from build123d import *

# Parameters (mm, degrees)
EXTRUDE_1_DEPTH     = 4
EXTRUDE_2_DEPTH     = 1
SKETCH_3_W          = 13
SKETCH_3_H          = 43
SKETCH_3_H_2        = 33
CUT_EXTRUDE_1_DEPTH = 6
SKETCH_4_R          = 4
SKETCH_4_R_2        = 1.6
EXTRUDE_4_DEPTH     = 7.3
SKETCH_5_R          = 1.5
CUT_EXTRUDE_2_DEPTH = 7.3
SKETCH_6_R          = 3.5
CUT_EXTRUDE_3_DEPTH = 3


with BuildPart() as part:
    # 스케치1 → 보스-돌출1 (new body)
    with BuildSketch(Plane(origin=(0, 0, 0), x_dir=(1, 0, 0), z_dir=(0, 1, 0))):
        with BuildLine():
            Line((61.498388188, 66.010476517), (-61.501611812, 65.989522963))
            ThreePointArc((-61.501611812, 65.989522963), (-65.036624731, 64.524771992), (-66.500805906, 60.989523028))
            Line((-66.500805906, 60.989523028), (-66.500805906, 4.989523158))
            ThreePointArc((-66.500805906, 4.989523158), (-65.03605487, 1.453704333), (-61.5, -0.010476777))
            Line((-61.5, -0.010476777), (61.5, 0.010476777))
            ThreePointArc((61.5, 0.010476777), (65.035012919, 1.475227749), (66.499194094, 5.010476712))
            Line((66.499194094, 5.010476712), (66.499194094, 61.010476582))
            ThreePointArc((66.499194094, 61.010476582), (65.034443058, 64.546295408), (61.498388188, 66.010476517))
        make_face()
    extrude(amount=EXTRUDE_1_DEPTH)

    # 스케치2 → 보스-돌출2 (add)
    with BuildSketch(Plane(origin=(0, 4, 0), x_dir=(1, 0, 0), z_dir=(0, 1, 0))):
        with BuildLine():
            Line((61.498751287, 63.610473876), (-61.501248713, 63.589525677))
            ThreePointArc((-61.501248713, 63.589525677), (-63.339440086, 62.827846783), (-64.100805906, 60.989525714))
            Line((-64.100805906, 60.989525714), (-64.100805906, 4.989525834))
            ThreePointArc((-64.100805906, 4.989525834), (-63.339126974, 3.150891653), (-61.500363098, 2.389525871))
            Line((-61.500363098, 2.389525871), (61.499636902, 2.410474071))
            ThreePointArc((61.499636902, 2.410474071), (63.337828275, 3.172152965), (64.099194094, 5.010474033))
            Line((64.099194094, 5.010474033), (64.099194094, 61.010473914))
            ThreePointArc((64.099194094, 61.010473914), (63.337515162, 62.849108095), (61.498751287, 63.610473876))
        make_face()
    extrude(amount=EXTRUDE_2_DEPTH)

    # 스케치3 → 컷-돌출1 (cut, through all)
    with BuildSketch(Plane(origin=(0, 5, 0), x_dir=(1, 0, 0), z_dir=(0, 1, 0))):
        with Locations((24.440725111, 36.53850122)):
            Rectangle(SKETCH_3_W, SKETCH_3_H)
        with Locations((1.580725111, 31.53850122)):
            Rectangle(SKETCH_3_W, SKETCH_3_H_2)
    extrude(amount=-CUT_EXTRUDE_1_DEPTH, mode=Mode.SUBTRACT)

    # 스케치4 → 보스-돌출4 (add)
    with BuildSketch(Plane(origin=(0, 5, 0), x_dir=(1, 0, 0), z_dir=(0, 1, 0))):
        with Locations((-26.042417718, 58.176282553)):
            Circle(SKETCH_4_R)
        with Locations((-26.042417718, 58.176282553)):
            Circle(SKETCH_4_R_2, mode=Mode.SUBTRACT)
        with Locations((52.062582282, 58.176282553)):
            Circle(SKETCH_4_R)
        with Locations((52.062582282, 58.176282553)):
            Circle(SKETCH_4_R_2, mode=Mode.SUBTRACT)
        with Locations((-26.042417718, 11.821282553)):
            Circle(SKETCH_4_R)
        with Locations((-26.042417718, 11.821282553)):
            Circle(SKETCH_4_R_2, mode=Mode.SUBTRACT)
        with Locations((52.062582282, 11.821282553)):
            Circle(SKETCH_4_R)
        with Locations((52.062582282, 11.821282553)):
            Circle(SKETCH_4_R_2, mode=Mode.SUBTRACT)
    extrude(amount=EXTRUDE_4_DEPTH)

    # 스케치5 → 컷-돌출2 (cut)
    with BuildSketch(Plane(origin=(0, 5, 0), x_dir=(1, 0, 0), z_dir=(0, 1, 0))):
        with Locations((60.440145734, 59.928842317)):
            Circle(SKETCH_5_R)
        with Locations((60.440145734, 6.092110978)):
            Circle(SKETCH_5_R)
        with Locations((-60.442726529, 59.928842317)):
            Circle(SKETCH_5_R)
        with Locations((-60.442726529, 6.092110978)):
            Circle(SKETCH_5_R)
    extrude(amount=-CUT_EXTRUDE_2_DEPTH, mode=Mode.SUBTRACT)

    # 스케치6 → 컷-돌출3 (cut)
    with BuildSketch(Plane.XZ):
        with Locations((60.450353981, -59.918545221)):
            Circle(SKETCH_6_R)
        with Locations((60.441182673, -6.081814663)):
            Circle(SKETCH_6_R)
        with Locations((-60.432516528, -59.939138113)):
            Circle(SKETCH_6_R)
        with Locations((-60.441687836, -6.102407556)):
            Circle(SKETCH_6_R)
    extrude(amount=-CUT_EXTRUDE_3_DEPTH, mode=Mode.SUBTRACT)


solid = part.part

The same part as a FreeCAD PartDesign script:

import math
import FreeCAD as App
import Part
import Sketcher

V = App.Vector

doc = App.newDocument("Part")
params = doc.addObject("Spreadsheet::Sheet", "Params")
for row, (alias, value) in enumerate([
    ("sketch1_radius", "5 mm"),
    ("sketch1_height", "56 mm"),
    ("sketch1_length", "123.000002 mm"),
    ("pad1_length", "4 mm"),
    ("sketch2_radius", "2.6 mm"),
    ("sketch2_height", "56 mm"),
    ("sketch2_length", "123.000002 mm"),
    ("pad2_length", "1 mm"),
    ("sketch3_width", "13 mm"),
    ("sketch3_height", "43 mm"),
    ("sketch3_height2", "33 mm"),
    ("sketch4_diameter", "8 mm"),
    ("sketch4_diameter2", "3.2 mm"),
    ("pad3_length", "7.3 mm"),
    ("sketch5_diameter", "3 mm"),
    ("pocket2_length", "7.3 mm"),
    ("sketch6_diameter", "7 mm"),
    ("pocket3_length", "3 mm"),
], start=1):
    params.set(f"A{row}", alias)
    params.set(f"B{row}", "=" + value)
    params.setAlias(f"B{row}", alias)

body = doc.addObject("PartDesign::Body", "Body")

sketch1 = body.newObject("Sketcher::SketchObject", "Sketch")
sketch1.AttachmentSupport = (doc.getObject("XZ_Plane"), [""])
sketch1.MapMode = "FlatFace"
sketch1.addGeometry(Part.LineSegment(V(61.498388, -66.010477, 0), V(-61.501612, -65.989523, 0)), False)
sketch1.addGeometry(Part.ArcOfCircle(Part.Circle(V(-61.500806, -60.989523, 0), V(0, 0, 1), 5), math.radians(180), math.radians(269.990765)), False)
sketch1.addGeometry(Part.LineSegment(V(-66.500806, -60.989523, 0), V(-66.500806, -4.989523, 0)), False)
sketch1.addGeometry(Part.ArcOfCircle(Part.Circle(V(-61.500806, -4.989523, 0), V(0, 0, 1), 5), math.radians(89.990765), math.radians(180)), False)
sketch1.addGeometry(Part.LineSegment(V(-61.5, 0.010477, 0), V(61.5, -0.010477, 0)), False)
sketch1.addGeometry(Part.ArcOfCircle(Part.Circle(V(61.499194, -5.010477, 0), V(0, 0, 1), 5), math.radians(0), math.radians(89.990765)), False)
sketch1.addGeometry(Part.LineSegment(V(66.499194, -5.010477, 0), V(66.499194, -61.010477, 0)), False)
sketch1.addGeometry(Part.ArcOfCircle(Part.Circle(V(61.499194, -61.010477, 0), V(0, 0, 1), 5), math.radians(-90.009235), math.radians(0)), False)
sketch1.addConstraint(Sketcher.Constraint("Coincident", 0, 2, 1, 2))
sketch1.addConstraint(Sketcher.Constraint("Tangent", 1, 1, 2, 1))
sketch1.addConstraint(Sketcher.Constraint("Tangent", 2, 2, 3, 2))
sketch1.addConstraint(Sketcher.Constraint("Coincident", 3, 1, 4, 1))
sketch1.addConstraint(Sketcher.Constraint("Coincident", 4, 2, 5, 2))
sketch1.addConstraint(Sketcher.Constraint("Tangent", 5, 1, 6, 1))
sketch1.addConstraint(Sketcher.Constraint("Tangent", 6, 2, 7, 2))
sketch1.addConstraint(Sketcher.Constraint("Coincident", 7, 1, 0, 1))
sketch1.addConstraint(Sketcher.Constraint("Vertical", 2))
sketch1.addConstraint(Sketcher.Constraint("Vertical", 6))
sketch1.addConstraint(Sketcher.Constraint("Equal", 1, 3))
sketch1.addConstraint(Sketcher.Constraint("Equal", 3, 5))
sketch1.addConstraint(Sketcher.Constraint("Equal", 5, 7))
sketch1.addConstraint(Sketcher.Constraint("Symmetric", 3, 1, 4, 2, -1, 1))
sketch1.addConstraint(Sketcher.Constraint("Parallel", 0, 4))
sketch1.addConstraint(Sketcher.Constraint("Equal", 0, 4))
sketch1.addConstraint(Sketcher.Constraint("Radius", 1, 5.0))
sketch1.addConstraint(Sketcher.Constraint("DistanceY", 2, 1, 2, 2, 56.0))
sketch1.addConstraint(Sketcher.Constraint("Distance", 0, 123.000002))
sketch1.addConstraint(Sketcher.Constraint("DistanceX", 3, 3, 5, 3, 123.0))
sketch1.addConstraint(Sketcher.Constraint("DistanceX", 0, 2, -1, 1, 61.501612))
sketch1.addConstraint(Sketcher.Constraint("DistanceX", 1, 3, -1, 1, 61.500806))
sketch1.addConstraint(Sketcher.Constraint("DistanceY", 1, 3, -1, 1, 60.989523))
sketch1.setExpression("Constraints[16]", "Params.sketch1_radius")
sketch1.setExpression("Constraints[17]", "Params.sketch1_height")
sketch1.setExpression("Constraints[18]", "Params.sketch1_length")
pad1 = body.newObject("PartDesign::Pad", "Pad")
pad1.Profile = sketch1
pad1.setExpression("Length", "Params.pad1_length")
pad1.Reversed = True

sketch2 = body.newObject("Sketcher::SketchObject", "Sketch001")
sketch2.AttachmentSupport = (doc.getObject("XZ_Plane"), [""])
sketch2.MapMode = "FlatFace"
sketch2.AttachmentOffset = App.Placement(V(0, 0, -4), App.Rotation())
sketch2.addGeometry(Part.LineSegment(V(61.498751, -63.610474, 0), V(-61.501249, -63.589526, 0)), False)
sketch2.addGeometry(Part.ArcOfCircle(Part.Circle(V(-61.500806, -60.989526, 0), V(0, 0, 1), 2.6), math.radians(180), math.radians(269.990242)), False)
sketch2.addGeometry(Part.LineSegment(V(-64.100806, -60.989526, 0), V(-64.100806, -4.989526, 0)), False)
sketch2.addGeometry(Part.ArcOfCircle(Part.Circle(V(-61.500806, -4.989526, 0), V(0, 0, 1), 2.6), math.radians(89.990242), math.radians(180)), False)
sketch2.addGeometry(Part.LineSegment(V(-61.500363, -2.389526, 0), V(61.499637, -2.410474, 0)), False)
sketch2.addGeometry(Part.ArcOfCircle(Part.Circle(V(61.499194, -5.010474, 0), V(0, 0, 1), 2.6), math.radians(0), math.radians(89.990242)), False)
sketch2.addGeometry(Part.LineSegment(V(64.099194, -5.010474, 0), V(64.099194, -61.010474, 0)), False)
sketch2.addGeometry(Part.ArcOfCircle(Part.Circle(V(61.499194, -61.010474, 0), V(0, 0, 1), 2.6), math.radians(-90.009758), math.radians(0)), False)
sketch2.addConstraint(Sketcher.Constraint("Tangent", 0, 2, 1, 2))
sketch2.addConstraint(Sketcher.Constraint("Tangent", 1, 1, 2, 1))
sketch2.addConstraint(Sketcher.Constraint("Tangent", 2, 2, 3, 2))
sketch2.addConstraint(Sketcher.Constraint("Tangent", 3, 1, 4, 1))
sketch2.addConstraint(Sketcher.Constraint("Tangent", 4, 2, 5, 2))
sketch2.addConstraint(Sketcher.Constraint("Tangent", 5, 1, 6, 1))
sketch2.addConstraint(Sketcher.Constraint("Tangent", 6, 2, 7, 2))
sketch2.addConstraint(Sketcher.Constraint("Tangent", 7, 1, 0, 1))
sketch2.addConstraint(Sketcher.Constraint("Vertical", 2))
sketch2.addConstraint(Sketcher.Constraint("Vertical", 6))
sketch2.addConstraint(Sketcher.Constraint("Equal", 1, 3))
sketch2.addConstraint(Sketcher.Constraint("Equal", 3, 5))
sketch2.addConstraint(Sketcher.Constraint("Equal", 5, 7))
sketch2.addConstraint(Sketcher.Constraint("Parallel", 0, 4))
sketch2.addConstraint(Sketcher.Constraint("Radius", 1, 2.6))
sketch2.addConstraint(Sketcher.Constraint("DistanceY", 2, 1, 2, 2, 56.0))
sketch2.addConstraint(Sketcher.Constraint("Distance", 0, 123.000002))
sketch2.addConstraint(Sketcher.Constraint("DistanceX", 0, 2, -1, 1, 61.501249))
sketch2.addConstraint(Sketcher.Constraint("DistanceY", 5, 3, 3, 3, 0.020948))
sketch2.addConstraint(Sketcher.Constraint("DistanceY", 1, 3, -1, 1, 60.989526))
sketch2.setExpression("Constraints[14]", "Params.sketch2_radius")
sketch2.setExpression("Constraints[15]", "Params.sketch2_height")
sketch2.setExpression("Constraints[16]", "Params.sketch2_length")
pad2 = body.newObject("PartDesign::Pad", "Pad001")
pad2.Profile = sketch2
pad2.setExpression("Length", "Params.pad2_length")
pad2.Reversed = True

sketch3 = body.newObject("Sketcher::SketchObject", "Sketch002")
sketch3.AttachmentSupport = (doc.getObject("XZ_Plane"), [""])
sketch3.MapMode = "FlatFace"
sketch3.AttachmentOffset = App.Placement(V(0, 0, -5), App.Rotation())
sketch3.addGeometry(Part.LineSegment(V(17.940725, -58.038501, 0), V(17.940725, -15.038501, 0)), False)
sketch3.addGeometry(Part.LineSegment(V(17.940725, -15.038501, 0), V(30.940725, -15.038501, 0)), False)
sketch3.addGeometry(Part.LineSegment(V(30.940725, -15.038501, 0), V(30.940725, -58.038501, 0)), False)
sketch3.addGeometry(Part.LineSegment(V(30.940725, -58.038501, 0), V(17.940725, -58.038501, 0)), False)
sketch3.addGeometry(Part.LineSegment(V(-4.919275, -48.038501, 0), V(-4.919275, -15.038501, 0)), False)
sketch3.addGeometry(Part.LineSegment(V(-4.919275, -15.038501, 0), V(8.080725, -15.038501, 0)), False)
sketch3.addGeometry(Part.LineSegment(V(8.080725, -15.038501, 0), V(8.080725, -48.038501, 0)), False)
sketch3.addGeometry(Part.LineSegment(V(8.080725, -48.038501, 0), V(-4.919275, -48.038501, 0)), False)
sketch3.addConstraint(Sketcher.Constraint("Coincident", 0, 2, 1, 1))
sketch3.addConstraint(Sketcher.Constraint("Coincident", 1, 2, 2, 1))
sketch3.addConstraint(Sketcher.Constraint("Coincident", 2, 2, 3, 1))
sketch3.addConstraint(Sketcher.Constraint("Coincident", 3, 2, 0, 1))
sketch3.addConstraint(Sketcher.Constraint("Coincident", 4, 2, 5, 1))
sketch3.addConstraint(Sketcher.Constraint("Coincident", 5, 2, 6, 1))
sketch3.addConstraint(Sketcher.Constraint("Coincident", 6, 2, 7, 1))
sketch3.addConstraint(Sketcher.Constraint("Coincident", 7, 2, 4, 1))
sketch3.addConstraint(Sketcher.Constraint("Vertical", 0))
sketch3.addConstraint(Sketcher.Constraint("Horizontal", 1))
sketch3.addConstraint(Sketcher.Constraint("Vertical", 2))
sketch3.addConstraint(Sketcher.Constraint("Horizontal", 3))
sketch3.addConstraint(Sketcher.Constraint("Vertical", 4))
sketch3.addConstraint(Sketcher.Constraint("Horizontal", 5))
sketch3.addConstraint(Sketcher.Constraint("Vertical", 6))
sketch3.addConstraint(Sketcher.Constraint("Horizontal", 7))
sketch3.addConstraint(Sketcher.Constraint("Horizontal", 1, 2, 4, 2))
sketch3.addConstraint(Sketcher.Constraint("Equal", 3, 5))
sketch3.addConstraint(Sketcher.Constraint("DistanceX", 1, 1, 1, 2, 13.0))
sketch3.addConstraint(Sketcher.Constraint("DistanceY", 0, 1, 0, 2, 43.0))
sketch3.addConstraint(Sketcher.Constraint("DistanceY", 4, 1, 4, 2, 33.0))
sketch3.addConstraint(Sketcher.Constraint("DistanceX", 4, 2, 0, 2, 22.86))
sketch3.addConstraint(Sketcher.Constraint("DistanceY", 0, 2, -1, 1, 15.038501))
sketch3.addConstraint(Sketcher.Constraint("DistanceX", -1, 1, 0, 2, 17.940725))
sketch3.setExpression("Constraints[18]", "Params.sketch3_width")
sketch3.setExpression("Constraints[19]", "Params.sketch3_height")
sketch3.setExpression("Constraints[20]", "Params.sketch3_height2")
pocket1 = body.newObject("PartDesign::Pocket", "Pocket")
pocket1.Profile = sketch3
pocket1.Type = "ThroughAll"
pocket1.Reversed = True

sketch4 = body.newObject("Sketcher::SketchObject", "Sketch003")
sketch4.AttachmentSupport = (doc.getObject("XZ_Plane"), [""])
sketch4.MapMode = "FlatFace"
sketch4.AttachmentOffset = App.Placement(V(0, 0, -5), App.Rotation())
sketch4.addGeometry(Part.Circle(V(-26.042418, -58.176283, 0), V(0, 0, 1), 4), False)
sketch4.addGeometry(Part.Circle(V(-26.042418, -58.176283, 0), V(0, 0, 1), 1.6), False)
sketch4.addGeometry(Part.Circle(V(52.062582, -58.176283, 0), V(0, 0, 1), 4), False)
sketch4.addGeometry(Part.Circle(V(52.062582, -58.176283, 0), V(0, 0, 1), 1.6), False)
sketch4.addGeometry(Part.Circle(V(-26.042418, -11.821283, 0), V(0, 0, 1), 4), False)
sketch4.addGeometry(Part.Circle(V(-26.042418, -11.821283, 0), V(0, 0, 1), 1.6), False)
sketch4.addGeometry(Part.Circle(V(52.062582, -11.821283, 0), V(0, 0, 1), 4), False)
sketch4.addGeometry(Part.Circle(V(52.062582, -11.821283, 0), V(0, 0, 1), 1.6), False)
sketch4.addConstraint(Sketcher.Constraint("Coincident", 1, 3, 0, 3))
sketch4.addConstraint(Sketcher.Constraint("Coincident", 3, 3, 2, 3))
sketch4.addConstraint(Sketcher.Constraint("Coincident", 5, 3, 4, 3))
sketch4.addConstraint(Sketcher.Constraint("Coincident", 7, 3, 6, 3))
sketch4.addConstraint(Sketcher.Constraint("Equal", 0, 2))
sketch4.addConstraint(Sketcher.Constraint("Equal", 1, 3))
sketch4.addConstraint(Sketcher.Constraint("Equal", 2, 4))
sketch4.addConstraint(Sketcher.Constraint("Equal", 3, 5))
sketch4.addConstraint(Sketcher.Constraint("Equal", 4, 6))
sketch4.addConstraint(Sketcher.Constraint("Equal", 5, 7))
sketch4.addConstraint(Sketcher.Constraint("Horizontal", 1, 3, 2, 3))
sketch4.addConstraint(Sketcher.Constraint("Horizontal", 5, 3, 6, 3))
sketch4.addConstraint(Sketcher.Constraint("Vertical", 1, 3, 4, 3))
sketch4.addConstraint(Sketcher.Constraint("Vertical", 3, 3, 6, 3))
sketch4.addConstraint(Sketcher.Constraint("Diameter", 0, 8.0))
sketch4.addConstraint(Sketcher.Constraint("Diameter", 1, 3.2))
sketch4.addConstraint(Sketcher.Constraint("DistanceX", 0, 3, 2, 3, 78.105))
sketch4.addConstraint(Sketcher.Constraint("DistanceY", 0, 3, 4, 3, 46.355))
sketch4.addConstraint(Sketcher.Constraint("DistanceX", 0, 3, -1, 1, 26.042418))
sketch4.addConstraint(Sketcher.Constraint("DistanceY", 0, 3, -1, 1, 58.176283))
sketch4.setExpression("Constraints[14]", "Params.sketch4_diameter")
sketch4.setExpression("Constraints[15]", "Params.sketch4_diameter2")
pad3 = body.newObject("PartDesign::Pad", "Pad002")
pad3.Profile = sketch4
pad3.setExpression("Length", "Params.pad3_length")
pad3.Reversed = True

sketch5 = body.newObject("Sketcher::SketchObject", "Sketch004")
sketch5.AttachmentSupport = (doc.getObject("XZ_Plane"), [""])
sketch5.MapMode = "FlatFace"
sketch5.AttachmentOffset = App.Placement(V(0, 0, -5), App.Rotation())
sketch5.addGeometry(Part.Circle(V(60.440146, -59.928842, 0), V(0, 0, 1), 1.5), False)
sketch5.addGeometry(Part.Circle(V(60.440146, -6.092111, 0), V(0, 0, 1), 1.5), False)
sketch5.addGeometry(Part.Circle(V(-60.442727, -59.928842, 0), V(0, 0, 1), 1.5), False)
sketch5.addGeometry(Part.Circle(V(-60.442727, -6.092111, 0), V(0, 0, 1), 1.5), False)
sketch5.addConstraint(Sketcher.Constraint("Equal", 0, 1))
sketch5.addConstraint(Sketcher.Constraint("Equal", 1, 2))
sketch5.addConstraint(Sketcher.Constraint("Equal", 2, 3))
sketch5.addConstraint(Sketcher.Constraint("Horizontal", 0, 3, 2, 3))
sketch5.addConstraint(Sketcher.Constraint("Horizontal", 1, 3, 3, 3))
sketch5.addConstraint(Sketcher.Constraint("Vertical", 0, 3, 1, 3))
sketch5.addConstraint(Sketcher.Constraint("Vertical", 2, 3, 3, 3))
sketch5.addConstraint(Sketcher.Constraint("Diameter", 0, 3.0))
sketch5.addConstraint(Sketcher.Constraint("DistanceY", 1, 3, -1, 1, 6.092111))
sketch5.addConstraint(Sketcher.Constraint("DistanceY", 0, 3, 1, 3, 53.836731))
sketch5.addConstraint(Sketcher.Constraint("DistanceX", -1, 1, 0, 3, 60.440146))
sketch5.addConstraint(Sketcher.Constraint("DistanceX", 2, 3, -1, 1, 60.442727))
sketch5.setExpression("Constraints[7]", "Params.sketch5_diameter")
pocket2 = body.newObject("PartDesign::Pocket", "Pocket001")
pocket2.Profile = sketch5
pocket2.setExpression("Length", "Params.pocket2_length")
pocket2.Reversed = True

sketch6 = body.newObject("Sketcher::SketchObject", "Sketch005")
sketch6.AttachmentSupport = (doc.getObject("XZ_Plane"), [""])
sketch6.MapMode = "FlatFace"
sketch6.addGeometry(Part.Circle(V(60.450354, -59.918545, 0), V(0, 0, 1), 3.5), False)
sketch6.addGeometry(Part.Circle(V(60.441183, -6.081815, 0), V(0, 0, 1), 3.5), False)
sketch6.addGeometry(Part.Circle(V(-60.432517, -59.939138, 0), V(0, 0, 1), 3.5), False)
sketch6.addGeometry(Part.Circle(V(-60.441688, -6.102408, 0), V(0, 0, 1), 3.5), False)
sketch6.addConstraint(Sketcher.Constraint("Equal", 0, 1))
sketch6.addConstraint(Sketcher.Constraint("Equal", 1, 2))
sketch6.addConstraint(Sketcher.Constraint("Equal", 2, 3))
sketch6.addConstraint(Sketcher.Constraint("Diameter", 0, 7.0))
sketch6.addConstraint(Sketcher.Constraint("DistanceX", 2, 3, 1, 3, 120.873699))
sketch6.addConstraint(Sketcher.Constraint("DistanceY", 2, 3, -1, 1, 59.939138))
sketch6.addConstraint(Sketcher.Constraint("DistanceX", 1, 3, 0, 3, 0.009171))
sketch6.addConstraint(Sketcher.Constraint("DistanceY", 0, 3, 1, 3, 53.836731))
sketch6.addConstraint(Sketcher.Constraint("DistanceX", 3, 3, 2, 3, 0.009171))
sketch6.addConstraint(Sketcher.Constraint("DistanceY", 2, 3, 3, 3, 53.836731))
sketch6.addConstraint(Sketcher.Constraint("DistanceX", -1, 1, 0, 3, 60.450354))
sketch6.addConstraint(Sketcher.Constraint("DistanceY", 0, 3, -1, 1, 59.918545))
sketch6.setExpression("Constraints[3]", "Params.sketch6_diameter")
pocket3 = body.newObject("PartDesign::Pocket", "Pocket002")
pocket3.Profile = sketch6
pocket3.setExpression("Length", "Params.pocket3_length")

doc.recompute()
